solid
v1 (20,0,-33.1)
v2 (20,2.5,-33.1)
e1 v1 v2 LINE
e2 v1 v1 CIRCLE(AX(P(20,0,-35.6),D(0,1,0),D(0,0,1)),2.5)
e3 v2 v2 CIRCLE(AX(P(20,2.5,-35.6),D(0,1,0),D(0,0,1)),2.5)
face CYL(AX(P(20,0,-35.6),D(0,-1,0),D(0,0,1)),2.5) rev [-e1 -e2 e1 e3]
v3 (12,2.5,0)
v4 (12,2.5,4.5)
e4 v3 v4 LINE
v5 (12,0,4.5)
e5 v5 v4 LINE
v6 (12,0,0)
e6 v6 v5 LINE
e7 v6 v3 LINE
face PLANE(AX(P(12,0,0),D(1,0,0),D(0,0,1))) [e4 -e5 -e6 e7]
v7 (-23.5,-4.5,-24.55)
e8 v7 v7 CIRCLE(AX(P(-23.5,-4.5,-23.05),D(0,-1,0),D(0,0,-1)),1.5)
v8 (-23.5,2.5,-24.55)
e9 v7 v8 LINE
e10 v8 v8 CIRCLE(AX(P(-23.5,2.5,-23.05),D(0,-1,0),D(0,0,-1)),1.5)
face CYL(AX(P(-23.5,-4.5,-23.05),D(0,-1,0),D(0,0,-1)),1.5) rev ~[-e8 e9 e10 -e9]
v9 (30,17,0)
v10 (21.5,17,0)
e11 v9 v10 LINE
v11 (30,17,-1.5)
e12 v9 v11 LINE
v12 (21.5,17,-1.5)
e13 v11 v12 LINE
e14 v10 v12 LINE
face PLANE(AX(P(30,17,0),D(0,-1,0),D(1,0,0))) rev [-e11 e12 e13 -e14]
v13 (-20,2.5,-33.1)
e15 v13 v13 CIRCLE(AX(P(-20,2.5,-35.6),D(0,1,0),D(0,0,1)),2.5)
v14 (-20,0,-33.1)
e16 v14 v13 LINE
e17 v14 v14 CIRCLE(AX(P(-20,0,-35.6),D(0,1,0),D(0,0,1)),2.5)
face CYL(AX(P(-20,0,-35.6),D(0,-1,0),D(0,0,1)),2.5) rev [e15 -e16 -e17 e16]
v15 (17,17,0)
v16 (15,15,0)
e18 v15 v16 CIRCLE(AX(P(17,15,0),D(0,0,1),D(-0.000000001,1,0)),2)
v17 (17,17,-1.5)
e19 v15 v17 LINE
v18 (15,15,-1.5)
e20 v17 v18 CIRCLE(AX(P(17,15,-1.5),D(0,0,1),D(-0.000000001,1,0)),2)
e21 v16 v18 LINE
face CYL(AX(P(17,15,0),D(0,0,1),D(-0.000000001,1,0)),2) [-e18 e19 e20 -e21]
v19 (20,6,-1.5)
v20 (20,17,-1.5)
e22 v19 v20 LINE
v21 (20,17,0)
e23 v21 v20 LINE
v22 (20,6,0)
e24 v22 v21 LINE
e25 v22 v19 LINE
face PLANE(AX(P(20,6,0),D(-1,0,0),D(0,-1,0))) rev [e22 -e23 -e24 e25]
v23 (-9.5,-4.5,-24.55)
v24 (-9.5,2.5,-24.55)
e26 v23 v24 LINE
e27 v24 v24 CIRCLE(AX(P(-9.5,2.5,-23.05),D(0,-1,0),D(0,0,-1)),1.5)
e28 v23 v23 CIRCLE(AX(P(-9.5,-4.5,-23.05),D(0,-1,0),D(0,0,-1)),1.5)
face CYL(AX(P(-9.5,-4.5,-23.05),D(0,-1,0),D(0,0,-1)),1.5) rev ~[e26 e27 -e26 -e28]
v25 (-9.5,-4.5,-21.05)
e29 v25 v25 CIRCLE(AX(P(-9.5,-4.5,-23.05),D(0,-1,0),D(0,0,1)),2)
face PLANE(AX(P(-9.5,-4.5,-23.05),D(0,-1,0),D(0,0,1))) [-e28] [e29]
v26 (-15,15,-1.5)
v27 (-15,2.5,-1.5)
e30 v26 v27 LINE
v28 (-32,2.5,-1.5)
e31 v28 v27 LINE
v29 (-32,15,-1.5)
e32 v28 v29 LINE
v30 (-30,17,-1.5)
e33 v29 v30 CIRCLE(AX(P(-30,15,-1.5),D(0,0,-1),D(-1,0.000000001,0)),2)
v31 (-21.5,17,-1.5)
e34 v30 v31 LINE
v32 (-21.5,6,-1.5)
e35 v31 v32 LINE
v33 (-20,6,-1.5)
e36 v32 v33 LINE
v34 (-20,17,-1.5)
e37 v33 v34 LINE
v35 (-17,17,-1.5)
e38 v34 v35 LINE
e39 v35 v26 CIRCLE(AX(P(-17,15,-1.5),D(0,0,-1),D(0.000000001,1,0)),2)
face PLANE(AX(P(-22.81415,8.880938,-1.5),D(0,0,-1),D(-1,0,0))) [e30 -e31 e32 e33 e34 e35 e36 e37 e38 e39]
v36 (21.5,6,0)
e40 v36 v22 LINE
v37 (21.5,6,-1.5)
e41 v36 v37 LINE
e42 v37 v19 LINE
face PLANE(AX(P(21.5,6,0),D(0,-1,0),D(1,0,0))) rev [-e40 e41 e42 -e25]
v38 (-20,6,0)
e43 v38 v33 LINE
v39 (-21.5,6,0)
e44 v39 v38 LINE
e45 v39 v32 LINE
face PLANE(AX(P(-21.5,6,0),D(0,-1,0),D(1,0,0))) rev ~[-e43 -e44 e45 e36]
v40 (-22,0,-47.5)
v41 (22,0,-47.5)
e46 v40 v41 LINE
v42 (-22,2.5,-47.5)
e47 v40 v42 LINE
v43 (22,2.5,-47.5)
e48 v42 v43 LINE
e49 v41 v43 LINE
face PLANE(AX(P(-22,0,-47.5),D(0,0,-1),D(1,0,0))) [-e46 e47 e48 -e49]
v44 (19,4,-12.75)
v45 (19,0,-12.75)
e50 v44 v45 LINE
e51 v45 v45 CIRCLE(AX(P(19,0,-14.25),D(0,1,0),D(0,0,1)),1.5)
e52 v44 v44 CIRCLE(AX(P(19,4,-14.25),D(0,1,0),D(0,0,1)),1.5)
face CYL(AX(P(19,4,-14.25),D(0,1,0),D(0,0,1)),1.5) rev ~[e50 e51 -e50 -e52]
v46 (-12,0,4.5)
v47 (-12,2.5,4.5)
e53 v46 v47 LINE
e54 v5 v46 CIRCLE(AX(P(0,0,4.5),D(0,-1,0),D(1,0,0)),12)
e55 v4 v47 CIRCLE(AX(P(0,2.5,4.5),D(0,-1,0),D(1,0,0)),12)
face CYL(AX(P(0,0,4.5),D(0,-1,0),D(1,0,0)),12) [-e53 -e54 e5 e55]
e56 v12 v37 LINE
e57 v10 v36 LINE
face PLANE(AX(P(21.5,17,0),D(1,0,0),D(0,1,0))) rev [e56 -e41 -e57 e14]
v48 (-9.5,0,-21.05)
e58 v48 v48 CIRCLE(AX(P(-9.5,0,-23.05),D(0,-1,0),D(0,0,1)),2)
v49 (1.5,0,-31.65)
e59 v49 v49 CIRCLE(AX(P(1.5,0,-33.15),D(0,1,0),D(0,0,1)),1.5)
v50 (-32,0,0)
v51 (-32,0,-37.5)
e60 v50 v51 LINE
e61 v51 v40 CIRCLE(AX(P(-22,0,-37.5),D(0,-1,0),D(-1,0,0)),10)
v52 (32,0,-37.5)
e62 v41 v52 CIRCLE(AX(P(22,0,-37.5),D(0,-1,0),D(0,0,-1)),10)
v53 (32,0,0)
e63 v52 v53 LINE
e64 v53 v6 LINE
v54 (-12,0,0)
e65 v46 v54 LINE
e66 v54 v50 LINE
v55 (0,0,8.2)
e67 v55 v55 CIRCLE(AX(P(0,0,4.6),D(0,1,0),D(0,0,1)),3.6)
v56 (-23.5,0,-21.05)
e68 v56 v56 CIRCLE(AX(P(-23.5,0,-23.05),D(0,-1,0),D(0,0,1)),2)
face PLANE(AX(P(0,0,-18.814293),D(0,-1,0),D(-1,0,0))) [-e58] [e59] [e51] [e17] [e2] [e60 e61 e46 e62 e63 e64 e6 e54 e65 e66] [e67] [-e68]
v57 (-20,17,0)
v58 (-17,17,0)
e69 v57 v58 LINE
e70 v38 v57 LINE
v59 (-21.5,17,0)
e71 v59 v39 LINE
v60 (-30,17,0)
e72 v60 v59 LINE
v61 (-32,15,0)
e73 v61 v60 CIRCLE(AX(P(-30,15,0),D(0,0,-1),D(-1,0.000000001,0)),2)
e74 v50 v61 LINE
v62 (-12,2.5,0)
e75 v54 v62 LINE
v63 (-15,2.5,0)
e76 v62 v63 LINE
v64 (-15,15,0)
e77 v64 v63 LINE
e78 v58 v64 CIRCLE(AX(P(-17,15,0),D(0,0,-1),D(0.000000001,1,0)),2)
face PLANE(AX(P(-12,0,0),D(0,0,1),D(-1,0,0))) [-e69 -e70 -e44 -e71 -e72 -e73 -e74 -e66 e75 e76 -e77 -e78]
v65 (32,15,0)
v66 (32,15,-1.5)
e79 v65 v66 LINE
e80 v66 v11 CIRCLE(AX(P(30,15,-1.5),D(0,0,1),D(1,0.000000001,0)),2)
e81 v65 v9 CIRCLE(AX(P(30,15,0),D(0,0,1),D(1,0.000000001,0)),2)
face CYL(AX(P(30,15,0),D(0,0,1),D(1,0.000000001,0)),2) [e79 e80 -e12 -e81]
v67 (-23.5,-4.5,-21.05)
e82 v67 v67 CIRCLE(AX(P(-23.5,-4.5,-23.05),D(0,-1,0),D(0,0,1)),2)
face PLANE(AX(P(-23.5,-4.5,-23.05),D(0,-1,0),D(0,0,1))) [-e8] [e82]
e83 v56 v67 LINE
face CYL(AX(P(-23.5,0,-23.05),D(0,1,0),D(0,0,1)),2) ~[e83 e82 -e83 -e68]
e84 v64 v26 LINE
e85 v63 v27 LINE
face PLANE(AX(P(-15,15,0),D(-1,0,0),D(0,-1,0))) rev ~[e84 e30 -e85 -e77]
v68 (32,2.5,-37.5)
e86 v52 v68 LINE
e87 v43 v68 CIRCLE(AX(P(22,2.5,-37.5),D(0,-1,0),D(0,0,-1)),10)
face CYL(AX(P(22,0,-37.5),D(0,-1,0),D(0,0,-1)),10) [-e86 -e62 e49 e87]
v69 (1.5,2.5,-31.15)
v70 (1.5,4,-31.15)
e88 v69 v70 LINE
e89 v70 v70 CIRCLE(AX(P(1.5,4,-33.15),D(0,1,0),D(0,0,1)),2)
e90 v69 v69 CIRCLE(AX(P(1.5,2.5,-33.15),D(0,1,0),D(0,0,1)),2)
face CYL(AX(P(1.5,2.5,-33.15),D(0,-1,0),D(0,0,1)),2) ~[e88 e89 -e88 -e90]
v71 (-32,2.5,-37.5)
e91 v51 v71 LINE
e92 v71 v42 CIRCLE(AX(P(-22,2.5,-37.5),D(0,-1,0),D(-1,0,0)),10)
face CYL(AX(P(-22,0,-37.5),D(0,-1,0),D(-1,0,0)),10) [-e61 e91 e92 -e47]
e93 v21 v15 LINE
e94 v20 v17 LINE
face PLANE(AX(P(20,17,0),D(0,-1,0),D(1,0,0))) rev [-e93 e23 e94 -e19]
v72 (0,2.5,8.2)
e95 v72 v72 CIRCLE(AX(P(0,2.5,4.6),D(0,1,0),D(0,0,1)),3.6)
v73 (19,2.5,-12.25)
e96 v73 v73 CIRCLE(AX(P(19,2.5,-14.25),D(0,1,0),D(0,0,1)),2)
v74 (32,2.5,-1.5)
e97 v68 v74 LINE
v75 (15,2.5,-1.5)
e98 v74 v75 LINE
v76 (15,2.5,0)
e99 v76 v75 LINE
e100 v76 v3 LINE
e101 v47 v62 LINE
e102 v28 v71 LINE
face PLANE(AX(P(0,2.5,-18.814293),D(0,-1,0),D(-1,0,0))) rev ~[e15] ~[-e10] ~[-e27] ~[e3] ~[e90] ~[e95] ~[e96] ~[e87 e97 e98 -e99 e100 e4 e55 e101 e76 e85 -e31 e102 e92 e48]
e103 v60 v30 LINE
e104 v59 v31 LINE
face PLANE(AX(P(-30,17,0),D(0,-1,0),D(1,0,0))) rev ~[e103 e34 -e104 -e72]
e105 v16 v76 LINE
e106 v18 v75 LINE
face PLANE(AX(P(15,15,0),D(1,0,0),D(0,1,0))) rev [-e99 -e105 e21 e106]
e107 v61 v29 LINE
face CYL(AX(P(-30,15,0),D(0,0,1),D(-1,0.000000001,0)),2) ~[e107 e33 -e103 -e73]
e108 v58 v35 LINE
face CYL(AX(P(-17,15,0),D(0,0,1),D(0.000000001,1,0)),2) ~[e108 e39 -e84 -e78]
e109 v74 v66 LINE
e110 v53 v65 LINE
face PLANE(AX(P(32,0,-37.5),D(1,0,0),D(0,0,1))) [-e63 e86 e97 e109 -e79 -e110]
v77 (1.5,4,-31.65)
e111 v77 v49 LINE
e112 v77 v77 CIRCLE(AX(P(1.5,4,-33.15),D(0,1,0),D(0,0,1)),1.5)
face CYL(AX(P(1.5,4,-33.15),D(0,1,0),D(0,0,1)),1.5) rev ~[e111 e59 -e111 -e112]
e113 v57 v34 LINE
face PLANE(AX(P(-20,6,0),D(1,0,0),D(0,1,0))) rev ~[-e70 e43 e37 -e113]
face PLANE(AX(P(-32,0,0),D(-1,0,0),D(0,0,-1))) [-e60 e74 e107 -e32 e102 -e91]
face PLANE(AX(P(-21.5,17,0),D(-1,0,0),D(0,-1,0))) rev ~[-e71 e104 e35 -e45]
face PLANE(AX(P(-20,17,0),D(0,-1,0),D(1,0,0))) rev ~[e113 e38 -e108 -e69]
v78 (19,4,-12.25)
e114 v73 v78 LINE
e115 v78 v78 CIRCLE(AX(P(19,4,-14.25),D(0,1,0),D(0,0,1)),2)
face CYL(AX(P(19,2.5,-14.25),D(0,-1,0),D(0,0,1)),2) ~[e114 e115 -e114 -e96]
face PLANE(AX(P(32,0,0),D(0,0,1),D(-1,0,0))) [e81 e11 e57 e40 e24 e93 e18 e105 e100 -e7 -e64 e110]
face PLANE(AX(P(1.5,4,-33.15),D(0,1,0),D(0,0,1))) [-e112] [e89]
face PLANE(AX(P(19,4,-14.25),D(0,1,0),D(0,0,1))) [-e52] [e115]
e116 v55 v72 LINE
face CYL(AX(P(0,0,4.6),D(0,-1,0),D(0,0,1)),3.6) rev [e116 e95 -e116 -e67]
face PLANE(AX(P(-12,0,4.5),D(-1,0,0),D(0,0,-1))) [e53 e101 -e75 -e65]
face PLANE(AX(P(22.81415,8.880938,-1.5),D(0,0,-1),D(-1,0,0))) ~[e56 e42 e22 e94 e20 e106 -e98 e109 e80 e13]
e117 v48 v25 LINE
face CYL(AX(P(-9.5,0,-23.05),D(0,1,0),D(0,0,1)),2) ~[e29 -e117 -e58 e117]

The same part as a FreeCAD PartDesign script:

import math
import FreeCAD as App
import Part
import Sketcher
from FreeCAD import Vector

doc = App.newDocument("Part")
body = doc.addObject("PartDesign::Body", "Body")

# Sketch on XZ plane
sketch1 = body.newObject("Sketcher::SketchObject", "Sketch")
sketch1.AttachmentSupport = (doc.getObject("XZ_Plane"), [""])
sketch1.MapMode = "FlatFace"
sketch1.addGeometry(Part.LineSegment(Vector(12, 0, 0), Vector(32, 0, 0)), False)
sketch1.addGeometry(Part.LineSegment(Vector(32, 0, 0), Vector(32, -37.5, 0)), False)
sketch1.addGeometry(Part.ArcOfCircle(Part.Circle(Vector(22, -37.5, 0), Vector(0, 0, 1), 10), math.radians(-90), math.radians(0)), False)
sketch1.addGeometry(Part.LineSegment(Vector(22, -47.5, 0), Vector(-22, -47.5, 0)), False)
sketch1.addGeometry(Part.ArcOfCircle(Part.Circle(Vector(-22, -37.5, 0), Vector(0, 0, 1), 10), math.radians(180), math.radians(270)), False)
sketch1.addGeometry(Part.LineSegment(Vector(-32, -37.5, 0), Vector(-32, 0, 0)), False)
sketch1.addGeometry(Part.LineSegment(Vector(-32, 0, 0), Vector(-12, 0, 0)), False)
sketch1.addGeometry(Part.LineSegment(Vector(-12, 0, 0), Vector(-12, 4.5, 0)), False)
sketch1.addGeometry(Part.ArcOfCircle(Part.Circle(Vector(0, 4.5, 0), Vector(0, 0, 1), 12), math.radians(0), math.radians(180)), False)
sketch1.addGeometry(Part.LineSegment(Vector(12, 4.5, 0), Vector(12, 0, 0)), False)
sketch1.addGeometry(Part.Circle(Vector(0, 4.6, 0), Vector(0, 0, 1), 3.6), False)
sketch1.addGeometry(Part.Circle(Vector(20, -35.6, 0), Vector(0, 0, 1), 2.5), False)
sketch1.addGeometry(Part.Circle(Vector(-20, -35.6, 0), Vector(0, 0, 1), 2.5), False)
sketch1.addConstraint(Sketcher.Constraint("Coincident", 0, 2, 1, 1))
sketch1.addConstraint(Sketcher.Constraint("Tangent", 1, 2, 2, 2))
sketch1.addConstraint(Sketcher.Constraint("Tangent", 2, 1, 3, 1))
sketch1.addConstraint(Sketcher.Constraint("Tangent", 3, 2, 4, 2))
sketch1.addConstraint(Sketcher.Constraint("Tangent", 4, 1, 5, 1))
sketch1.addConstraint(Sketcher.Constraint("Coincident", 5, 2, 6, 1))
sketch1.addConstraint(Sketcher.Constraint("Coincident", 6, 2, 7, 1))
sketch1.addConstraint(Sketcher.Constraint("Tangent", 7, 2, 8, 2))
sketch1.addConstraint(Sketcher.Constraint("Tangent", 8, 1, 9, 1))
sketch1.addConstraint(Sketcher.Constraint("Coincident", 9, 2, 0, 1))
sketch1.addConstraint(Sketcher.Constraint("Horizontal", 0))
sketch1.addConstraint(Sketcher.Constraint("Vertical", 1))
sketch1.addConstraint(Sketcher.Constraint("Horizontal", 3))
sketch1.addConstraint(Sketcher.Constraint("Vertical", 5))
sketch1.addConstraint(Sketcher.Constraint("Horizontal", 6))
sketch1.addConstraint(Sketcher.Constraint("Vertical", 7))
sketch1.addConstraint(Sketcher.Constraint("Vertical", 9))
sketch1.addConstraint(Sketcher.Constraint("Equal", 2, 4))
sketch1.addConstraint(Sketcher.Constraint("Equal", 11, 12))
sketch1.addConstraint(Sketcher.Constraint("Symmetric", 0, 2, 5, 2, -1, 1))
sketch1.addConstraint(Sketcher.Constraint("Symmetric", 11, 3, 12, 3, -2))
sketch1.addConstraint(Sketcher.Constraint("Symmetric", 6, 2, 9, 2, -2))
sketch1.addConstraint(Sketcher.Constraint("PointOnObject", 10, 3, -2))
sketch1.addConstraint(Sketcher.Constraint("Diameter", 11, 5.0))
sketch1.addConstraint(Sketcher.Constraint("Radius", 2, 10.0))
sketch1.addConstraint(Sketcher.Constraint("Radius", 8, 12.0))
sketch1.addConstraint(Sketcher.Constraint("Diameter", 10, 7.2))
sketch1.addConstraint(Sketcher.Constraint("DistanceX", 0, 1, 0, 2, 20.0))
sketch1.addConstraint(Sketcher.Constraint("DistanceY", 1, 2, 1, 1, 37.5))
sketch1.addConstraint(Sketcher.Constraint("DistanceY", 7, 1, 7, 2, 4.5))
sketch1.addConstraint(Sketcher.Constraint("DistanceX", -1, 1, 11, 3, 20.0))
sketch1.addConstraint(Sketcher.Constraint("DistanceY", -1, 1, 10, 3, 4.6))
sketch1.addConstraint(Sketcher.Constraint("DistanceY", 11, 3, -1, 1, 35.6))
pad1 = body.newObject("PartDesign::Pad", "Pad")
pad1.Profile = sketch1
pad1.Length = 2.5
pad1.Reversed = True

# Sketch on XZ plane
sketch2 = body.newObject("Sketcher::SketchObject", "Sketch001")
sketch2.AttachmentSupport = (doc.getObject("XZ_Plane"), [""])
sketch2.MapMode = "FlatFace"
sketch2.AttachmentOffset = App.Placement(Vector(0, 0, -2.5), App.Rotation())
sketch2.addGeometry(Part.Circle(Vector(1.5, -33.1, 0), Vector(0, 0, 1), 2), False)
sketch2.addGeometry(Part.Circle(Vector(19, -14.2, 0), Vector(0, 0, 1), 2), False)
sketch2.addConstraint(Sketcher.Constraint("Equal", 0, 1))
sketch2.addConstraint(Sketcher.Constraint("Diameter", 0, 4.0))
sketch2.addConstraint(Sketcher.Constraint("DistanceX", -1, 1, 1, 3, 19.0))
sketch2.addConstraint(Sketcher.Constraint("DistanceX", -1, 1, 0, 3, 1.5))
sketch2.addConstraint(Sketcher.Constraint("DistanceY", 0, 3, 1, 3, 18.9))
sketch2.addConstraint(Sketcher.Constraint("DistanceY", 0, 3, -1, 1, 33.15))
pad2 = body.newObject("PartDesign::Pad", "Pad001")
pad2.Profile = sketch2
pad2.Length = 1.5
pad2.Reversed = True

# Sketch on XZ plane
sketch3 = body.newObject("Sketcher::SketchObject", "Sketch002")
sketch3.AttachmentSupport = (doc.getObject("XZ_Plane"), [""])
sketch3.MapMode = "FlatFace"
sketch3.AttachmentOffset = App.Placement(Vector(0, 0, -4), App.Rotation())
sketch3.addGeometry(Part.Circle(Vector(1.5, -33.1, 0), Vector(0, 0, 1), 1.5), False)
sketch3.addGeometry(Part.Circle(Vector(19, -14.2, 0), Vector(0, 0, 1), 1.5), False)
sketch3.addConstraint(Sketcher.Constraint("Equal", 0, 1))
sketch3.addConstraint(Sketcher.Constraint("Diameter", 0, 3.0))
sketch3.addConstraint(Sketcher.Constraint("DistanceX", -1, 1, 1, 3, 19.0))
sketch3.addConstraint(Sketcher.Constraint("DistanceX", -1, 1, 0, 3, 1.5))
sketch3.addConstraint(Sketcher.Constraint("DistanceY", 0, 3, 1, 3, 18.9))
sketch3.addConstraint(Sketcher.Constraint("DistanceY", 0, 3, -1, 1, 33.15))
pocket1 = body.newObject("PartDesign::Pocket", "Pocket")
pocket1.Profile = sketch3
pocket1.Type = "ThroughAll"
pocket1.Reversed = True

# Sketch on XZ plane
sketch4 = body.newObject("Sketcher::SketchObject", "Sketch003")
sketch4.AttachmentSupport = (doc.getObject("XZ_Plane"), [""])
sketch4.MapMode = "FlatFace"
sketch4.addGeometry(Part.Circle(Vector(-23.5, -23.1, 0), Vector(0, 0, 1), 2), False)
sketch4.addGeometry(Part.Circle(Vector(-9.5, -23.1, 0), Vector(0, 0, 1), 2), False)
sketch4.addConstraint(Sketcher.Constraint("Equal", 0, 1))
sketch4.addConstraint(Sketcher.Constraint("Horizontal", 0, 3, 1, 3))
sketch4.addConstraint(Sketcher.Constraint("Diameter", 0, 4.0))
sketch4.addConstraint(Sketcher.Constraint("DistanceX", 0, 3, 1, 3, 14.0))
sketch4.addConstraint(Sketcher.Constraint("DistanceX", 0, 3, -1, 1, 23.5))
sketch4.addConstraint(Sketcher.Constraint("DistanceY", 0, 3, -1, 1, 23.05))
pad3 = body.newObject("PartDesign::Pad", "Pad002")
pad3.Profile = sketch4
pad3.Length = 4.5

# Sketch on XZ plane
sketch5 = body.newObject("Sketcher::SketchObject", "Sketch004")
sketch5.AttachmentSupport = (doc.getObject("XZ_Plane"), [""])
sketch5.MapMode = "FlatFace"
sketch5.AttachmentOffset = App.Placement(Vector(0, 0, 4.5), App.Rotation())
sketch5.addGeometry(Part.Circle(Vector(-23.5, -23.1, 0), Vector(0, 0, 1), 1.5), False)
sketch5.addGeometry(Part.Circle(Vector(-9.5, -23.1, 0), Vector(0, 0, 1), 1.5), False)
sketch5.addConstraint(Sketcher.Constraint("Equal", 0, 1))
sketch5.addConstraint(Sketcher.Constraint("Horizontal", 0, 3, 1, 3))
sketch5.addConstraint(Sketcher.Constraint("Diameter", 0, 3.0))
sketch5.addConstraint(Sketcher.Constraint("DistanceX", 0, 3, 1, 3, 14.0))
sketch5.addConstraint(Sketcher.Constraint("DistanceX", 0, 3, -1, 1, 23.5))
sketch5.addConstraint(Sketcher.Constraint("DistanceY", 0, 3, -1, 1, 23.05))
pocket2 = body.newObject("PartDesign::Pocket", "Pocket001")
pocket2.Profile = sketch5
pocket2.Type = "ThroughAll"

# Sketch on XY plane
sketch6 = body.newObject("Sketcher::SketchObject", "Sketch005")
sketch6.AttachmentSupport = (doc.getObject("XY_Plane"), [""])
sketch6.MapMode = "FlatFace"
sketch6.addGeometry(Part.LineSegment(Vector(-32, 15, 0), Vector(-32, 0, 0)), False)
sketch6.addGeometry(Part.LineSegment(Vector(-32, 0, 0), Vector(-15, 0, 0)), False)
sketch6.addGeometry(Part.LineSegment(Vector(-15, 0, 0), Vector(-15, 15, 0)), False)
sketch6.addGeometry(Part.ArcOfCircle(Part.Circle(Vector(-17, 15, 0), Vector(0, 0, 1), 2), math.radians(0), math.radians(90)), False)
sketch6.addGeometry(Part.LineSegment(Vector(-17, 17, 0), Vector(-20, 17, 0)), False)
sketch6.addGeometry(Part.LineSegment(Vector(-20, 17, 0), Vector(-20, 6, 0)), False)
sketch6.addGeometry(Part.LineSegment(Vector(-20, 6, 0), Vector(-21.5, 6, 0)), False)
sketch6.addGeometry(Part.LineSegment(Vector(-21.5, 6, 0), Vector(-21.5, 17, 0)), False)
sketch6.addGeometry(Part.LineSegment(Vector(-21.5, 17, 0), Vector(-30, 17, 0)), False)
sketch6.addGeometry(Part.ArcOfCircle(Part.Circle(Vector(-30, 15, 0), Vector(0, 0, 1), 2), math.radians(90), math.radians(180)), False)
sketch6.addConstraint(Sketcher.Constraint("Coincident", 0, 2, 1, 1))
sketch6.addConstraint(Sketcher.Constraint("Coincident", 1, 2, 2, 1))
sketch6.addConstraint(Sketcher.Constraint("Tangent", 2, 2, 3, 1))
sketch6.addConstraint(Sketcher.Constraint("Tangent", 3, 2, 4, 1))
sketch6.addConstraint(Sketcher.Constraint("Coincident", 4, 2, 5, 1))
sketch6.addConstraint(Sketcher.Constraint("Coincident", 5, 2, 6, 1))
sketch6.addConstraint(Sketcher.Constraint("Coincident", 6, 2, 7, 1))
sketch6.addConstraint(Sketcher.Constraint("Coincident", 7, 2, 8, 1))
sketch6.addConstraint(Sketcher.Constraint("Tangent", 8, 2, 9, 1))
sketch6.addConstraint(Sketcher.Constraint("Tangent", 9, 2, 0, 1))
sketch6.addConstraint(Sketcher.Constraint("Vertical", 0))
sketch6.addConstraint(Sketcher.Constraint("Horizontal", 1))
sketch6.addConstraint(Sketcher.Constraint("Vertical", 2))
sketch6.addConstraint(Sketcher.Constraint("Horizontal", 4))
sketch6.addConstraint(Sketcher.Constraint("Vertical", 5))
sketch6.addConstraint(Sketcher.Constraint("Horizontal", 6))
sketch6.addConstraint(Sketcher.Constraint("Vertical", 7))
sketch6.addConstraint(Sketcher.Constraint("Horizontal", 8))
sketch6.addConstraint(Sketcher.Constraint("Equal", 3, 9))
sketch6.addConstraint(Sketcher.Constraint("PointOnObject", 0, 2, -1))
sketch6.addConstraint(Sketcher.Constraint("Horizontal", 3, 3, 9, 3))
sketch6.addConstraint(Sketcher.Constraint("Radius", 3, 2.0))
sketch6.addConstraint(Sketcher.Constraint("DistanceX", 1, 1, 1, 2, 17.0))
sketch6.addConstraint(Sketcher.Constraint("DistanceX", 4, 2, 4, 1, 3.0))
sketch6.addConstraint(Sketcher.Constraint("DistanceY", 0, 2, 0, 1, 15.0))
sketch6.addConstraint(Sketcher.Constraint("DistanceY", 5, 2, 5, 1, 11.0))
sketch6.addConstraint(Sketcher.Constraint("DistanceX", 6, 2, 6, 1, 1.5))
sketch6.addConstraint(Sketcher.Constraint("DistanceX", 3, 3, -1, 1, 17.0))
pad4 = body.newObject("PartDesign::Pad", "Pad003")
pad4.Profile = sketch6
pad4.Length = 1.5
pad4.Reversed = True
doc.recompute()

mirrored = body.newObject("PartDesign::Mirrored", "Mirrored")
mirrored.Originals = [pad4]
mirrored.MirrorPlane = (doc.getObject("YZ_Plane"), [""])
body.Tip = mirrored

doc.recompute()
